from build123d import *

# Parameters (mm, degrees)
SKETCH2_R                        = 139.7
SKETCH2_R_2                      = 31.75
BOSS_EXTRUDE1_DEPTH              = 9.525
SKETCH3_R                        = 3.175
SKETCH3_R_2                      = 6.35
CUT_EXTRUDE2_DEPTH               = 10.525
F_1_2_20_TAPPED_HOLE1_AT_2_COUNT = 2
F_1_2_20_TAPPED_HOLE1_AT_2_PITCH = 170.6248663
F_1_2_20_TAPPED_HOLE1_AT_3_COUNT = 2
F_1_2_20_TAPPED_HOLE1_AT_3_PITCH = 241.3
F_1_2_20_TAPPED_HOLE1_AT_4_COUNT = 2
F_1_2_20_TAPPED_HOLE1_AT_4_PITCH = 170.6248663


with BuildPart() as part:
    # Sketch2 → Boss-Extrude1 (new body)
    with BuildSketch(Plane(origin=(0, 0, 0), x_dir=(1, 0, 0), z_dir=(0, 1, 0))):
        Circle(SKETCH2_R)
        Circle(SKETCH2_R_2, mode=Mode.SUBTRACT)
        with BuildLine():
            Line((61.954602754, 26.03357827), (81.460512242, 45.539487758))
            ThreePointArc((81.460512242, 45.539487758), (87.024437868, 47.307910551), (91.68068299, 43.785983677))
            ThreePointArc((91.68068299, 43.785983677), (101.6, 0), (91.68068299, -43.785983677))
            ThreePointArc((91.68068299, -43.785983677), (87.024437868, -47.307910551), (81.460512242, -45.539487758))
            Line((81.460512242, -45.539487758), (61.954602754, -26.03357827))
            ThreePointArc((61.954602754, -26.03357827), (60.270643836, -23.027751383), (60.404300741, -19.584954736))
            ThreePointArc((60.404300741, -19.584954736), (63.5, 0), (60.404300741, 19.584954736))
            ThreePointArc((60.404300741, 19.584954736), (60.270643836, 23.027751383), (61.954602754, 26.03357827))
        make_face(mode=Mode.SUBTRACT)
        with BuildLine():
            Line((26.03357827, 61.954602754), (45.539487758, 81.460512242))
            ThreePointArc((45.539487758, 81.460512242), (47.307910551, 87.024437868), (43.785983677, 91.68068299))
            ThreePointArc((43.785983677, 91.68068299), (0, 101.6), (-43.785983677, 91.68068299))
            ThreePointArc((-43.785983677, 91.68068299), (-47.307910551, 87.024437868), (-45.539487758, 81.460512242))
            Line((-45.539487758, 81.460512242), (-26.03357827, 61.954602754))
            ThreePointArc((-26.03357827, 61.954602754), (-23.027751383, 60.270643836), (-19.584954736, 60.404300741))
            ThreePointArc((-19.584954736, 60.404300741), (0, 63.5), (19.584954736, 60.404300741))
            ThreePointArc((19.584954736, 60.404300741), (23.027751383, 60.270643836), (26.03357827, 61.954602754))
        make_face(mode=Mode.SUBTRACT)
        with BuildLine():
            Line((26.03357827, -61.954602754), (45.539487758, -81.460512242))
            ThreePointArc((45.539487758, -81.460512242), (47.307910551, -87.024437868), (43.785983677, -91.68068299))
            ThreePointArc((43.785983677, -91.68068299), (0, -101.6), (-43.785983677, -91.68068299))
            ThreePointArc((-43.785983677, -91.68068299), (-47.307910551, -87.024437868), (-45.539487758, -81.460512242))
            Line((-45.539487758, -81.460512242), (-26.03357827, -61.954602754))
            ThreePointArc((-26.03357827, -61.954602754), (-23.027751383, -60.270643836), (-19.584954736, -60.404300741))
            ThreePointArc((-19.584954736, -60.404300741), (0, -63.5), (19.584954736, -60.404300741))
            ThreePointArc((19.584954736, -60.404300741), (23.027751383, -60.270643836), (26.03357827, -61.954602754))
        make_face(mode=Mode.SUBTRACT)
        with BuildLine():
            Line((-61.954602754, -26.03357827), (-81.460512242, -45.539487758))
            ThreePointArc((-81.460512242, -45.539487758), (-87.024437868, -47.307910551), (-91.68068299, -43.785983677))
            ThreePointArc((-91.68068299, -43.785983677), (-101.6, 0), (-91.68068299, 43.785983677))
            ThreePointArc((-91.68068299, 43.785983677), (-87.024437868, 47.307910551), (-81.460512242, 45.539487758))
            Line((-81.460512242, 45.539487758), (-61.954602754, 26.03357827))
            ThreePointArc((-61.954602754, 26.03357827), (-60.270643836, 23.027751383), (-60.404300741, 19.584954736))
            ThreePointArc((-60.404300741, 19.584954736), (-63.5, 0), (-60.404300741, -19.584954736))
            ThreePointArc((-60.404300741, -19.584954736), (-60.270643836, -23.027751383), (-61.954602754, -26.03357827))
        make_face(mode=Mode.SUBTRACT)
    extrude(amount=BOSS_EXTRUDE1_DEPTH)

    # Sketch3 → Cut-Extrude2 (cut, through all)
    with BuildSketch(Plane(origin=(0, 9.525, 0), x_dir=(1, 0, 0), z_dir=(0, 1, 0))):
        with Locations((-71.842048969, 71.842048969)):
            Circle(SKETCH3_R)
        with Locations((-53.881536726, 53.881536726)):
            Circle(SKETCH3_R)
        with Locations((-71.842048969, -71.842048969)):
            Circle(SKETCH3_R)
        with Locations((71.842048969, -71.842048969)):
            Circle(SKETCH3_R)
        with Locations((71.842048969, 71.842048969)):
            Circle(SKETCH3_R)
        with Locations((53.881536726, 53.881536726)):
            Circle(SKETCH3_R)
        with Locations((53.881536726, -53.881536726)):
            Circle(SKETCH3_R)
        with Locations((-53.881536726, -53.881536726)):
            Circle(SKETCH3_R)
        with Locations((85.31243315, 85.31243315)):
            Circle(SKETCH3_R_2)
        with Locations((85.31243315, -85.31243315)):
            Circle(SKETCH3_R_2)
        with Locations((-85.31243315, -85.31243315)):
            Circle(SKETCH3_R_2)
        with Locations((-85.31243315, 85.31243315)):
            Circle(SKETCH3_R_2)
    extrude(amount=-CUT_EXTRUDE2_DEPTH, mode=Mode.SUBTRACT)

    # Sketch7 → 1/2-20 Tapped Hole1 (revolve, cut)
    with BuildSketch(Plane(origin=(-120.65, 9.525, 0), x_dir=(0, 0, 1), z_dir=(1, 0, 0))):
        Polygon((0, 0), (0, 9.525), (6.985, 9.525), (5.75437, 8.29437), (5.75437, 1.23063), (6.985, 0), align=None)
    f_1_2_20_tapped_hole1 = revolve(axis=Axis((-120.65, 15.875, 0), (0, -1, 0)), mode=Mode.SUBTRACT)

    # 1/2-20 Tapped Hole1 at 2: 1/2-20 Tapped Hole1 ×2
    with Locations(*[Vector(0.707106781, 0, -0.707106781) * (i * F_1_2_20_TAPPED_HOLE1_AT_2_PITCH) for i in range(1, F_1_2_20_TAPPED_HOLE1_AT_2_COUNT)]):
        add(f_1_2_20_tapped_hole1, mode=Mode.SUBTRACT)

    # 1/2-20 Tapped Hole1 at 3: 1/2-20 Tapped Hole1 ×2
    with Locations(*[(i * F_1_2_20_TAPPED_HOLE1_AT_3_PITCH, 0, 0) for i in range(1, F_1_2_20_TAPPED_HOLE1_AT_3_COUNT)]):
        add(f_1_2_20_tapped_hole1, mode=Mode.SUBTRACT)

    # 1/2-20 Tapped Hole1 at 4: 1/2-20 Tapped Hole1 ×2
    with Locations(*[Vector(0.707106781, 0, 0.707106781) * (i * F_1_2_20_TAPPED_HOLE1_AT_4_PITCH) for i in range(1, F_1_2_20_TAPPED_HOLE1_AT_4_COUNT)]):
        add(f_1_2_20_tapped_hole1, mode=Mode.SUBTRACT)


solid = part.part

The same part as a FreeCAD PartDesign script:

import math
import FreeCAD as App
import Part
import Sketcher
Q = App.Units.Quantity


def add_polygon(sketch, points):
    """Adds a closed chain of lines whose ends are joined by coincident constraints."""
    first, n = sketch.GeometryCount, len(points)
    for a, b in zip(points, points[1:] + points[:1]):
        sketch.addGeometry(Part.LineSegment(App.Vector(*a, 0), App.Vector(*b, 0)), False)
    for i in range(n):
        sketch.addConstraint(Sketcher.Constraint("Coincident", first + i, 2, first + (i + 1) % n, 1))

doc = App.newDocument("Part")
body = doc.addObject("PartDesign::Body", "Body")

# Sketch on XZ plane
sketch1 = body.newObject("Sketcher::SketchObject", "Sketch")
sketch1.AttachmentSupport = (doc.getObject("XZ_Plane"), [""])
sketch1.MapMode = "FlatFace"
sketch1.addGeometry([
    Part.Circle(App.Vector(0, 0, 0), App.Vector(0, 0, 1), 140),  # 0
    Part.ArcOfCircle(Part.Circle(App.Vector(22, 66, 0), App.Vector(0, 0, 1), 6), math.radians(-108), math.radians(-45)),  # 1
    Part.LineSegment(App.Vector(26, 62, 0), App.Vector(46, 81, 0)),  # 2
    Part.ArcOfCircle(Part.Circle(App.Vector(41, 86, 0), App.Vector(0, 0, 1), 6), math.radians(-45), math.radians(64)),  # 3
    Part.ArcOfCircle(Part.Circle(App.Vector(0, 0, 0), App.Vector(0, 0, 1), 102), math.radians(64), math.radians(116)),  # 4
    Part.ArcOfCircle(Part.Circle(App.Vector(-41, 86, 0), App.Vector(0, 0, 1), 6), math.radians(116), math.radians(225)),  # 5
    Part.LineSegment(App.Vector(-46, 81, 0), App.Vector(-26, 62, 0)),  # 6
    Part.ArcOfCircle(Part.Circle(App.Vector(-22, 66, 0), App.Vector(0, 0, 1), 6), math.radians(-135), math.radians(-72)),  # 7
    Part.ArcOfCircle(Part.Circle(App.Vector(0, 0, 0), App.Vector(0, 0, 1), 64), math.radians(72), math.radians(108)),  # 8
    Part.ArcOfCircle(Part.Circle(App.Vector(-66, 22, 0), App.Vector(0, 0, 1), 6), math.radians(-18), math.radians(45)),  # 9
    Part.LineSegment(App.Vector(-62, 26, 0), App.Vector(-81, 46, 0)),  # 10
    Part.ArcOfCircle(Part.Circle(App.Vector(-86, 41, 0), App.Vector(0, 0, 1), 6), math.radians(45), math.radians(154)),  # 11
    Part.ArcOfCircle(Part.Circle(App.Vector(0, 0, 0), App.Vector(0, 0, 1), 102), math.radians(154), math.radians(206)),  # 12
    Part.ArcOfCircle(Part.Circle(App.Vector(-86, -41, 0), App.Vector(0, 0, 1), 6), math.radians(-154), math.radians(-45)),  # 13
    Part.LineSegment(App.Vector(-81, -46, 0), App.Vector(-62, -26, 0)),  # 14
    Part.ArcOfCircle(Part.Circle(App.Vector(-66, -22, 0), App.Vector(0, 0, 1), 6), math.radians(-45), math.radians(18)),  # 15
    Part.ArcOfCircle(Part.Circle(App.Vector(0, 0, 0), App.Vector(0, 0, 1), 64), math.radians(162), math.radians(198)),  # 16
    Part.Circle(App.Vector(0, 0, 0), App.Vector(0, 0, 1), 32),  # 17
    Part.ArcOfCircle(Part.Circle(App.Vector(66, -22, 0), App.Vector(0, 0, 1), 6), math.radians(162), math.radians(225)),  # 18
    Part.LineSegment(App.Vector(62, -26, 0), App.Vector(81, -46, 0)),  # 19
    Part.ArcOfCircle(Part.Circle(App.Vector(86, -41, 0), App.Vector(0, 0, 1), 6), math.radians(-135), math.radians(-26)),  # 20
    Part.ArcOfCircle(Part.Circle(App.Vector(0, 0, 0), App.Vector(0, 0, 1), 102), math.radians(-26), math.radians(26)),  # 21
    Part.ArcOfCircle(Part.Circle(App.Vector(86, 41, 0), App.Vector(0, 0, 1), 6), math.radians(26), math.radians(135)),  # 22
    Part.LineSegment(App.Vector(81, 46, 0), App.Vector(62, 26, 0)),  # 23
    Part.ArcOfCircle(Part.Circle(App.Vector(66, 22, 0), App.Vector(0, 0, 1), 6), math.radians(135), math.radians(198)),  # 24
    Part.ArcOfCircle(Part.Circle(App.Vector(0, 0, 0), App.Vector(0, 0, 1), 64), math.radians(-18), math.radians(18)),  # 25
    Part.LineSegment(App.Vector(46, -81, 0), App.Vector(26, -62, 0)),  # 26
    Part.ArcOfCircle(Part.Circle(App.Vector(22, -66, 0), App.Vector(0, 0, 1), 6), math.radians(45), math.radians(108)),  # 27
    Part.ArcOfCircle(Part.Circle(App.Vector(0, 0, 0), App.Vector(0, 0, 1), 64), math.radians(-108), math.radians(-72)),  # 28
    Part.ArcOfCircle(Part.Circle(App.Vector(-22, -66, 0), App.Vector(0, 0, 1), 6), math.radians(72), math.radians(135)),  # 29
    Part.LineSegment(App.Vector(-26, -62, 0), App.Vector(-46, -81, 0)),  # 30
    Part.ArcOfCircle(Part.Circle(App.Vector(-41, -86, 0), App.Vector(0, 0, 1), 6), math.radians(135), math.radians(244)),  # 31
    Part.ArcOfCircle(Part.Circle(App.Vector(0, 0, 0), App.Vector(0, 0, 1), 102), math.radians(-116), math.radians(-64)),  # 32
    Part.ArcOfCircle(Part.Circle(App.Vector(41, -86, 0), App.Vector(0, 0, 1), 6), math.radians(-64), math.radians(45)),  # 33
], False)
sketch1.addConstraint([
    Sketcher.Constraint("Tangent", 1, 2, 2, 1),
    Sketcher.Constraint("Tangent", 2, 2, 3, 1),
    Sketcher.Constraint("Tangent", 3, 2, 4, 1),
    Sketcher.Constraint("Tangent", 4, 2, 5, 1),
    Sketcher.Constraint("Tangent", 5, 2, 6, 1),
    Sketcher.Constraint("Tangent", 6, 2, 7, 1),
    Sketcher.Constraint("Tangent", 7, 2, 8, 2),
    Sketcher.Constraint("Tangent", 8, 1, 1, 1),
    Sketcher.Constraint("Tangent", 9, 2, 10, 1),
    Sketcher.Constraint("Tangent", 10, 2, 11, 1),
    Sketcher.Constraint("Tangent", 11, 2, 12, 1),
    Sketcher.Constraint("Tangent", 12, 2, 13, 1),
    Sketcher.Constraint("Tangent", 13, 2, 14, 1),
    Sketcher.Constraint("Tangent", 14, 2, 15, 1),
    Sketcher.Constraint("Tangent", 15, 2, 16, 2),
    Sketcher.Constraint("Tangent", 16, 1, 9, 1),
    Sketcher.Constraint("Tangent", 18, 2, 19, 1),
    Sketcher.Constraint("Tangent", 19, 2, 20, 1),
    Sketcher.Constraint("Tangent", 20, 2, 21, 1),
    Sketcher.Constraint("Tangent", 21, 2, 22, 1),
    Sketcher.Constraint("Tangent", 22, 2, 23, 1),
    Sketcher.Constraint("Tangent", 23, 2, 24, 1),
    Sketcher.Constraint("Tangent", 24, 2, 25, 2),
    Sketcher.Constraint("Tangent", 25, 1, 18, 1),
    Sketcher.Constraint("Tangent", 26, 2, 27, 1),
    Sketcher.Constraint("Tangent", 27, 2, 28, 2),
    Sketcher.Constraint("Tangent", 28, 1, 29, 1),
    Sketcher.Constraint("Tangent", 29, 2, 30, 1),
    Sketcher.Constraint("Tangent", 30, 2, 31, 1),
    Sketcher.Constraint("Tangent", 31, 2, 32, 1),
    Sketcher.Constraint("Tangent", 32, 2, 33, 1),
    Sketcher.Constraint("Tangent", 33, 2, 26, 1),
    Sketcher.Constraint("Coincident", 0, 3, -1, 1),
    Sketcher.Constraint("Coincident", 4, 3, -1, 1),
    Sketcher.Constraint("Coincident", 8, 3, -1, 1),
    Sketcher.Constraint("Coincident", 12, 3, -1, 1),
    Sketcher.Constraint("Coincident", 16, 3, -1, 1),
    Sketcher.Constraint("Coincident", 17, 3, -1, 1),
    Sketcher.Constraint("Coincident", 21, 3, -1, 1),
    Sketcher.Constraint("Coincident", 25, 3, -1, 1),
    Sketcher.Constraint("Coincident", 28, 3, -1, 1),
    Sketcher.Constraint("Coincident", 32, 3, -1, 1),
    Sketcher.Constraint("Equal", 1, 3),
    Sketcher.Constraint("Equal", 3, 5),
    Sketcher.Constraint("Equal", 5, 7),
    Sketcher.Constraint("Equal", 7, 9),
    Sketcher.Constraint("Equal", 9, 11),
    Sketcher.Constraint("Equal", 4, 12),
    Sketcher.Constraint("Equal", 11, 13),
    Sketcher.Constraint("Equal", 13, 15),
    Sketcher.Constraint("Equal", 8, 16),
    Sketcher.Constraint("Equal", 15, 18),
    Sketcher.Constraint("Equal", 18, 20),
    Sketcher.Constraint("Equal", 12, 21),
    Sketcher.Constraint("Equal", 20, 22),
    Sketcher.Constraint("Equal", 22, 24),
    Sketcher.Constraint("Equal", 16, 25),
    Sketcher.Constraint("Equal", 24, 27),
    Sketcher.Constraint("Equal", 25, 28),
    Sketcher.Constraint("Equal", 27, 29),
    Sketcher.Constraint("Equal", 29, 31),
    Sketcher.Constraint("Equal", 21, 32),
    Sketcher.Constraint("Equal", 31, 33),
    Sketcher.Constraint("Symmetric", 9, 2, 18, 2, -1, 1),
    Sketcher.Constraint("Symmetric", 13, 2, 22, 2, -1, 1),
    Sketcher.Constraint("Symmetric", 6, 2, 26, 2, -1, 1),
    Sketcher.Constraint("Symmetric", 1, 2, 29, 2, -1, 1),
    Sketcher.Constraint("Symmetric", 2, 2, 5, 2, -2),
    Sketcher.Constraint("Symmetric", 14, 2, 18, 2, -2),
    Sketcher.Constraint("Perpendicular", 2, 6),
    Sketcher.Constraint("Parallel", 6, 10),
    Sketcher.Constraint("Equal", 6, 10),
    Sketcher.Constraint("Diameter", 0, Q("11 in")),
    Sketcher.Constraint("Radius", 4, Q("4 in")),
    Sketcher.Constraint("Diameter", 17, Q("2.5 in")),
    Sketcher.Constraint("Radius", 8, Q("2.5 in")),
    Sketcher.Constraint("Radius", 1, Q("0.25 in")),
    Sketcher.Constraint("DistanceY", -1, 1, 7, 2, 60.404301),
])
pad1 = body.newObject("PartDesign::Pad", "Pad")
pad1.Profile = sketch1
pad1.Length = Q("0.375 in")
pad1.Reversed = True

# Sketch on XZ plane
sketch2 = body.newObject("Sketcher::SketchObject", "Sketch001")
sketch2.AttachmentSupport = (doc.getObject("XZ_Plane"), [""])
sketch2.MapMode = "FlatFace"
sketch2.AttachmentOffset = App.Placement(App.Vector(0, 0, -0.375 * 25.4), App.Rotation())
sketch2.addGeometry([
    Part.Circle(App.Vector(-71.8, -71.8, 0), App.Vector(0, 0, 1), 3.2),  # 0
    Part.Circle(App.Vector(-53.9, -53.9, 0), App.Vector(0, 0, 1), 3.2),  # 1
    Part.Circle(App.Vector(-71.8, 71.8, 0), App.Vector(0, 0, 1), 3.2),  # 2
    Part.Circle(App.Vector(71.8, 71.8, 0), App.Vector(0, 0, 1), 3.2),  # 3
    Part.Circle(App.Vector(71.8, -71.8, 0), App.Vector(0, 0, 1), 3.2),  # 4
    Part.Circle(App.Vector(53.9, -53.9, 0), App.Vector(0, 0, 1), 3.2),  # 5
    Part.Circle(App.Vector(53.9, 53.9, 0), App.Vector(0, 0, 1), 3.2),  # 6
    Part.Circle(App.Vector(-53.9, 53.9, 0), App.Vector(0, 0, 1), 3.2),  # 7
    Part.Circle(App.Vector(85.3, -85.3, 0), App.Vector(0, 0, 1), 6.3),  # 8
    Part.Circle(App.Vector(85.3, 85.3, 0), App.Vector(0, 0, 1), 6.3),  # 9
    Part.Circle(App.Vector(-85.3, 85.3, 0), App.Vector(0, 0, 1), 6.3),  # 10
    Part.Circle(App.Vector(-85.3, -85.3, 0), App.Vector(0, 0, 1), 6.3),  # 11
], False)
sketch2.addConstraint([
    Sketcher.Constraint("Equal", 0, 1),
    Sketcher.Constraint("Equal", 1, 2),
    Sketcher.Constraint("Equal", 2, 3),
    Sketcher.Constraint("Equal", 3, 4),
    Sketcher.Constraint("Equal", 4, 5),
    Sketcher.Constraint("Equal", 5, 6),
    Sketcher.Constraint("Equal", 6, 7),
    Sketcher.Constraint("Equal", 8, 9),
    Sketcher.Constraint("Equal", 9, 10),
    Sketcher.Constraint("Equal", 10, 11),
    Sketcher.Constraint("Symmetric", 0, 3, 3, 3, -1, 1),
    Sketcher.Constraint("Symmetric", 2, 3, 4, 3, -1, 1),
    Sketcher.Constraint("Symmetric", 1, 3, 6, 3, -1, 1),
    Sketcher.Constraint("Symmetric", 5, 3, 7, 3, -1, 1),
    Sketcher.Constraint("Symmetric", 8, 3, 10, 3, -1, 1),
    Sketcher.Constraint("Symmetric", 9, 3, 11, 3, -1, 1),
    Sketcher.Constraint("Symmetric", 2, 3, 3, 3, -2),
    Sketcher.Constraint("Symmetric", 1, 3, 5, 3, -2),
    Sketcher.Constraint("Symmetric", 9, 3, 10, 3, -2),
    Sketcher.Constraint("Diameter", 8, Q("0.5 in")),
    Sketcher.Constraint("Diameter", 0, Q("0.25 in")),
    Sketcher.Constraint("DistanceX", 0, 3, -1, 1, 71.842049),
    Sketcher.Constraint("DistanceY", 0, 3, -1, 1, 71.842049),
    Sketcher.Constraint("DistanceX", 1, 3, 8, 3, 139.19397),
    Sketcher.Constraint("DistanceY", 8, 3, 6, 3, 139.19397),
    Sketcher.Constraint("DistanceX", 1, 3, -1, 1, 53.881537),
    Sketcher.Constraint("DistanceY", 1, 3, -1, 1, 53.881537),
])
pocket1 = body.newObject("PartDesign::Pocket", "Pocket")
pocket1.Profile = sketch2
pocket1.Type = "ThroughAll"
pocket1.Reversed = True

# Sketch on YZ plane
sketch3 = body.newObject("Sketcher::SketchObject", "Sketch002")
sketch3.AttachmentSupport = (doc.getObject("YZ_Plane"), [""])
sketch3.MapMode = "FlatFace"
sketch3.AttachmentOffset = App.Placement(App.Vector(0, 0, -4.75 * 25.4), App.Rotation())
add_polygon(sketch3, [(0, 0), (9.5, 0), (9.5, 7), (8.3, 5.8), (1.2, 5.8), (0, 7)])  # lines 0-5
sketch3.addConstraint([
    Sketcher.Constraint("Horizontal", 0),
    Sketcher.Constraint("Vertical", 1),
    Sketcher.Constraint("Horizontal", 3),
    Sketcher.Constraint("Vertical", 5),
    Sketcher.Constraint("Coincident", 5, 2, -1, 1),
    Sketcher.Constraint("Perpendicular", 2, 4),
    Sketcher.Constraint("Horizontal", 1, 2, 4, 2),
    Sketcher.Constraint("Equal", 2, 4),
    Sketcher.Constraint("DistanceX", 0, 1, 0, 2, Q("0.375 in")),
    Sketcher.Constraint("DistanceY", 1, 1, 1, 2, Q("0.275 in")),
    Sketcher.Constraint("DistanceX", 3, 2, 3, 1, Q("0.2781 in")),
])
groove = body.newObject("PartDesign::Groove", "Groove")
groove.Profile = sketch3
groove.ReferenceAxis = (sketch3, ["H_Axis"])
groove.Angle = 360
doc.recompute()

datumline = body.newObject("PartDesign::Line", "DatumLine")
datumline.Placement = App.Placement(App.Vector(0, 0, 0), App.Rotation(App.Vector(0, 0, 1), App.Vector(0.707106781, 0, -0.707106781)))
linearpattern = body.newObject("PartDesign::LinearPattern", "LinearPattern")
linearpattern.Originals = [groove]
linearpattern.Direction = (datumline, [""])
linearpattern.Mode = "offset"
linearpattern.Offset = 170.624866
linearpattern.Occurrences = 2
body.Tip = linearpattern
doc.recompute()

linearpattern2 = body.newObject("PartDesign::LinearPattern", "LinearPattern001")
linearpattern2.Originals = [groove]
linearpattern2.Direction = (doc.getObject("X_Axis"), [""])
linearpattern2.Mode = "offset"
linearpattern2.Offset = Q("9.5 in")
linearpattern2.Occurrences = 2
body.Tip = linearpattern2
doc.recompute()

datumline2 = body.newObject("PartDesign::Line", "DatumLine001")
datumline2.Placement = App.Placement(App.Vector(0, 0, 0), App.Rotation(App.Vector(0, 0, 1), App.Vector(0.707106781, 0, 0.707106781)))
linearpattern3 = body.newObject("PartDesign::LinearPattern", "LinearPattern002")
linearpattern3.Originals = [groove]
linearpattern3.Direction = (datumline2, [""])
linearpattern3.Mode = "offset"
linearpattern3.Offset = 170.624866
linearpattern3.Occurrences = 2
body.Tip = linearpattern3

doc.recompute()
